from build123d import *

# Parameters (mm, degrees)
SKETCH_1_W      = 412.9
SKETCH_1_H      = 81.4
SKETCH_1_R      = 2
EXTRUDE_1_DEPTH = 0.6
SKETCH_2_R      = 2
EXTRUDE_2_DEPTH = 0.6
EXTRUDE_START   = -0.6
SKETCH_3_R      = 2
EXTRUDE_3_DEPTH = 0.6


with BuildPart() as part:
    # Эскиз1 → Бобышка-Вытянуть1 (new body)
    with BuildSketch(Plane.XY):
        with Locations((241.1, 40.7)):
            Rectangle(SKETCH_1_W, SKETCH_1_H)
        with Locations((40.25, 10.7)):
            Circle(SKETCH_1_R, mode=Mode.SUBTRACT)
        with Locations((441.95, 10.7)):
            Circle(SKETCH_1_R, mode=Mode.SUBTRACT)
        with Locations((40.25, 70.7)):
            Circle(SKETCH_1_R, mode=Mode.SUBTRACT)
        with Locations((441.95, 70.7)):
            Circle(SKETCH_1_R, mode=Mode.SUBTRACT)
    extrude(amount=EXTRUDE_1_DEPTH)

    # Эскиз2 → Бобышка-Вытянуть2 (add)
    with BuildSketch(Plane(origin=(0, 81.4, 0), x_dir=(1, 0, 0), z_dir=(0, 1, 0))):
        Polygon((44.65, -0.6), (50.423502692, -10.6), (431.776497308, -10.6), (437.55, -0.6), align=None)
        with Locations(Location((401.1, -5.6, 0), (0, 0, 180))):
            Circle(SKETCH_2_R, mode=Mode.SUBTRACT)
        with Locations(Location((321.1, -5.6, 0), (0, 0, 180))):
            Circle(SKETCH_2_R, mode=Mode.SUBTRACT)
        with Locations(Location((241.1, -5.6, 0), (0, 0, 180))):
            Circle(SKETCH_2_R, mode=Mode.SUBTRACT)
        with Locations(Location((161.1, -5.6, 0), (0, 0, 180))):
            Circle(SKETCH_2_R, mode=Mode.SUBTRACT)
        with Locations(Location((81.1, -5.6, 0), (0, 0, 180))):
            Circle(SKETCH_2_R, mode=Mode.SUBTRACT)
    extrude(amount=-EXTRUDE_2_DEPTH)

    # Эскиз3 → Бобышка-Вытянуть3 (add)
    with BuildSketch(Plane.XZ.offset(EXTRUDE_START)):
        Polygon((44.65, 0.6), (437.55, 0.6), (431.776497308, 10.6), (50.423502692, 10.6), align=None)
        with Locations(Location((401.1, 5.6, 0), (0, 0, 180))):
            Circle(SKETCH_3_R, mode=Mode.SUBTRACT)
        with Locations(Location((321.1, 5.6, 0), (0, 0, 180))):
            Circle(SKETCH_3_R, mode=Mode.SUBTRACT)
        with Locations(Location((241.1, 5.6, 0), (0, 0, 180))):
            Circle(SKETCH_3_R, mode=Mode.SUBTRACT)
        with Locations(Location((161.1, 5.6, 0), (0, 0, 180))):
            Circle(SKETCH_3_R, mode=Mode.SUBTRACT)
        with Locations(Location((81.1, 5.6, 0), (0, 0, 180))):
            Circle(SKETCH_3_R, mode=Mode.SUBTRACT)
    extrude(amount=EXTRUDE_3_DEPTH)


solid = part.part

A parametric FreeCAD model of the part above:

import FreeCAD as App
import Part
import Sketcher
Q = App.Units.Quantity


def add_polygon(sketch, points):
    """Adds a closed chain of lines whose ends are joined by coincident constraints."""
    first, n = sketch.GeometryCount, len(points)
    for a, b in zip(points, points[1:] + points[:1]):
        sketch.addGeometry(Part.LineSegment(App.Vector(*a, 0), App.Vector(*b, 0)), False)
    for i in range(n):
        sketch.addConstraint(Sketcher.Constraint("Coincident", first + i, 2, first + (i + 1) % n, 1))

doc = App.newDocument("Part")
params = doc.addObject("Spreadsheet::Sheet", "Params")
for row, (alias, value) in enumerate([
    ("sketch1_diameter", "4 mm"),
    ("sketch1_width", "412.9 mm"),
    ("sketch1_height", "81.4 mm"),
    ("pad1_length", "0.6 mm"),
    ("sketch2_diameter", "4 mm"),
    ("sketch2_width", "392.9 mm"),
    ("pad2_length", "0.6 mm"),
    ("sketch3_diameter", "4 mm"),
    ("sketch3_width", "392.9 mm"),
    ("pad3_length", "0.6 mm"),
], start=1):
    params.set(f"A{row}", alias)
    params.set(f"B{row}", "=" + value)
    params.setAlias(f"B{row}", alias)

body = doc.addObject("PartDesign::Body", "Body")

sketch1 = doc.addObject("Sketcher::SketchObject", "Sketch")
body.addObject(sketch1)
sketch1.AttachmentSupport = (doc.XY_Plane, [""])
sketch1.MapMode = "FlatFace"
add_polygon(sketch1, [(34.65, 81.4), (34.65, 0), (447.55, 0), (447.55, 81.4)])
sketch1.addGeometry(Part.Circle(App.Vector(40.25, 10.7, 0), App.Vector(0, 0, 1), 2), False)
sketch1.addGeometry(Part.Circle(App.Vector(441.95, 10.7, 0), App.Vector(0, 0, 1), 2), False)
sketch1.addGeometry(Part.Circle(App.Vector(40.25, 70.7, 0), App.Vector(0, 0, 1), 2), False)
sketch1.addGeometry(Part.Circle(App.Vector(441.95, 70.7, 0), App.Vector(0, 0, 1), 2), False)
sketch1.addConstraint([
    Sketcher.Constraint("Vertical", 0),
    Sketcher.Constraint("Horizontal", 1),
    Sketcher.Constraint("Vertical", 2),
    Sketcher.Constraint("Horizontal", 3),
    Sketcher.Constraint("Equal", 4, 5),
    Sketcher.Constraint("Equal", 5, 6),
    Sketcher.Constraint("Equal", 6, 7),
    Sketcher.Constraint("PointOnObject", 0, 2, -1),
    Sketcher.Constraint("Horizontal", 4, 3, 5, 3),
    Sketcher.Constraint("Horizontal", 6, 3, 7, 3),
    Sketcher.Constraint("Vertical", 4, 3, 6, 3),
    Sketcher.Constraint("Vertical", 5, 3, 7, 3),
    Sketcher.Constraint("Diameter", 4, 4.0),
    Sketcher.Constraint("DistanceX", 1, 1, 1, 2, 412.9),
    Sketcher.Constraint("DistanceY", 0, 2, 0, 1, 81.4),
    Sketcher.Constraint("DistanceY", 4, 3, 6, 3, 60.0),
    Sketcher.Constraint("DistanceY", -1, 1, 4, 3, 10.7),
    Sketcher.Constraint("DistanceX", 4, 3, 5, 3, 401.7),
    Sketcher.Constraint("DistanceX", 0, 2, 4, 3, 5.6),
    Sketcher.Constraint("DistanceX", -1, 1, 4, 3, 40.25),
])
sketch1.setExpression("Constraints[16]", "Params.sketch1_diameter")
sketch1.setExpression("Constraints[17]", "Params.sketch1_width")
sketch1.setExpression("Constraints[18]", "Params.sketch1_height")
pad1 = doc.addObject("PartDesign::Pad", "Pad")
body.addObject(pad1)
pad1.Profile = sketch1
pad1.setExpression("Length", "Params.pad1_length")

sketch2 = doc.addObject("Sketcher::SketchObject", "Sketch001")
body.addObject(sketch2)
sketch2.AttachmentSupport = (doc.XZ_Plane, [""])
sketch2.MapMode = "FlatFace"
sketch2.AttachmentOffset = App.Placement(App.Vector(0, 0, -81.4), App.Rotation())
add_polygon(sketch2, [(44.65, 0.6), (50.423503, 10.6), (431.776497, 10.6), (437.55, 0.6)])
sketch2.addGeometry(Part.Circle(App.Vector(81.1, 5.6, 0), App.Vector(0, 0, 1), 2), False)
sketch2.addGeometry(Part.Circle(App.Vector(161.1, 5.6, 0), App.Vector(0, 0, 1), 2), False)
sketch2.addGeometry(Part.Circle(App.Vector(241.1, 5.6, 0), App.Vector(0, 0, 1), 2), False)
sketch2.addGeometry(Part.Circle(App.Vector(321.1, 5.6, 0), App.Vector(0, 0, 1), 2), False)
sketch2.addGeometry(Part.Circle(App.Vector(401.1, 5.6, 0), App.Vector(0, 0, 1), 2), False)
sketch2.addConstraint([
    Sketcher.Constraint("Horizontal", 1),
    Sketcher.Constraint("Horizontal", 3),
    Sketcher.Constraint("Equal", 4, 5),
    Sketcher.Constraint("Equal", 5, 6),
    Sketcher.Constraint("Equal", 6, 7),
    Sketcher.Constraint("Equal", 7, 8),
    Sketcher.Constraint("Horizontal", 4, 3, 5, 3),
    Sketcher.Constraint("Horizontal", 5, 3, 6, 3),
    Sketcher.Constraint("Horizontal", 6, 3, 7, 3),
    Sketcher.Constraint("Horizontal", 7, 3, 8, 3),
    Sketcher.Constraint("Equal", 0, 2),
    Sketcher.Constraint("Diameter", 4, 4.0),
    Sketcher.Constraint("Angle", 0, Q("60 deg")),
    Sketcher.Constraint("DistanceX", 3, 2, 3, 1, 392.9),
    Sketcher.Constraint("DistanceX", 4, 3, 5, 3, 80.0),
    Sketcher.Constraint("DistanceX", 5, 3, 6, 3, 80.0),
    Sketcher.Constraint("DistanceX", 6, 3, 7, 3, 80.0),
    Sketcher.Constraint("DistanceX", 7, 3, 8, 3, 80.0),
    Sketcher.Constraint("DistanceY", 4, 3, 0, 2, 5.0),
    Sketcher.Constraint("DistanceY", 2, 2, 1, 2, 10.0),
    Sketcher.Constraint("DistanceX", -1, 1, 4, 3, 81.1),
    Sketcher.Constraint("DistanceY", -1, 1, 4, 3, 5.6),
    Sketcher.Constraint("DistanceX", -1, 1, 2, 2, 437.55),
])
sketch2.setExpression("Constraints[15]", "Params.sketch2_diameter")
sketch2.setExpression("Constraints[17]", "Params.sketch2_width")
pad2 = doc.addObject("PartDesign::Pad", "Pad001")
body.addObject(pad2)
pad2.Profile = sketch2
pad2.setExpression("Length", "Params.pad2_length")

sketch3 = doc.addObject("Sketcher::SketchObject", "Sketch002")
body.addObject(sketch3)
sketch3.AttachmentSupport = (doc.XZ_Plane, [""])
sketch3.MapMode = "FlatFace"
sketch3.AttachmentOffset = App.Placement(App.Vector(0, 0, -0.6), App.Rotation())
add_polygon(sketch3, [(44.65, 0.6), (437.55, 0.6), (431.776497, 10.6), (50.423503, 10.6)])
sketch3.addGeometry(Part.Circle(App.Vector(81.1, 5.6, 0), App.Vector(0, 0, 1), 2), False)
sketch3.addGeometry(Part.Circle(App.Vector(161.1, 5.6, 0), App.Vector(0, 0, 1), 2), False)
sketch3.addGeometry(Part.Circle(App.Vector(241.1, 5.6, 0), App.Vector(0, 0, 1), 2), False)
sketch3.addGeometry(Part.Circle(App.Vector(321.1, 5.6, 0), App.Vector(0, 0, 1), 2), False)
sketch3.addGeometry(Part.Circle(App.Vector(401.1, 5.6, 0), App.Vector(0, 0, 1), 2), False)
sketch3.addConstraint([
    Sketcher.Constraint("Horizontal", 0),
    Sketcher.Constraint("Horizontal", 2),
    Sketcher.Constraint("Equal", 4, 5),
    Sketcher.Constraint("Equal", 5, 6),
    Sketcher.Constraint("Equal", 6, 7),
    Sketcher.Constraint("Equal", 7, 8),
    Sketcher.Constraint("Horizontal", 4, 3, 5, 3),
    Sketcher.Constraint("Horizontal", 5, 3, 6, 3),
    Sketcher.Constraint("Horizontal", 6, 3, 7, 3),
    Sketcher.Constraint("Horizontal", 7, 3, 8, 3),
    Sketcher.Constraint("Equal", 1, 3),
    Sketcher.Constraint("Diameter", 4, 4.0),
    Sketcher.Constraint("Angle", 1, Q("120 deg")),
    Sketcher.Constraint("DistanceX", 0, 1, 0, 2, 392.9),
    Sketcher.Constraint("DistanceX", 4, 3, 5, 3, 80.0),
    Sketcher.Constraint("DistanceX", 5, 3, 6, 3, 80.0),
    Sketcher.Constraint("DistanceX", 6, 3, 7, 3, 80.0),
    Sketcher.Constraint("DistanceX", 7, 3, 8, 3, 80.0),
    Sketcher.Constraint("DistanceY", 0, 2, 8, 3, 5.0),
    Sketcher.Constraint("DistanceY", 0, 2, 1, 2, 10.0),
    Sketcher.Constraint("DistanceX", -1, 1, 4, 3, 81.1),
    Sketcher.Constraint("DistanceY", -1, 1, 4, 3, 5.6),
    Sketcher.Constraint("DistanceX", -1, 1, 0, 2, 437.55),
])
sketch3.setExpression("Constraints[15]", "Params.sketch3_diameter")
sketch3.setExpression("Constraints[17]", "Params.sketch3_width")
pad3 = doc.addObject("PartDesign::Pad", "Pad002")
body.addObject(pad3)
pad3.Profile = sketch3
pad3.setExpression("Length", "Params.pad3_length")

doc.recompute()
